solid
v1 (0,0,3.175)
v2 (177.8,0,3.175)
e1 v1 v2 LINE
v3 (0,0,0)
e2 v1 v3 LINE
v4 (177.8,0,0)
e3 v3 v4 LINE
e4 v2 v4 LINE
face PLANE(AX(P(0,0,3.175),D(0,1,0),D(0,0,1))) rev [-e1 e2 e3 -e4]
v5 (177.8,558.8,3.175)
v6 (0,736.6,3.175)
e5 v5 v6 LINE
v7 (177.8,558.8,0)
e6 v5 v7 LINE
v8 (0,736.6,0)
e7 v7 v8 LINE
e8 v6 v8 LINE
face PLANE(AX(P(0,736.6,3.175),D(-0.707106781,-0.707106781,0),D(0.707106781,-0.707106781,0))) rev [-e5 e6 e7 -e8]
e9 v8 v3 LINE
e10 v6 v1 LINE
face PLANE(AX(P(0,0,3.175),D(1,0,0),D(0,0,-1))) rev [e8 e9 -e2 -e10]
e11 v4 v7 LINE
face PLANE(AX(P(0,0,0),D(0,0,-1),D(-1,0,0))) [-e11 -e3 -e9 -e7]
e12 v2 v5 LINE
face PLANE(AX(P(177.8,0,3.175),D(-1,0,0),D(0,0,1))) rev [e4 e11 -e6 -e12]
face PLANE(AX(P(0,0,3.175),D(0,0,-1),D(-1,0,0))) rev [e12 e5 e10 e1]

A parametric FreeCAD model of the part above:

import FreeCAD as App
import Part
import Sketcher
from FreeCAD import Vector
Q = App.Units.Quantity


def add_polygon(sketch, points):
    """Adds a closed chain of lines whose ends are joined by coincident constraints."""
    first, n = sketch.GeometryCount, len(points)
    for a, b in zip(points, points[1:] + points[:1]):
        sketch.addGeometry(Part.LineSegment(App.Vector(*a, 0), App.Vector(*b, 0)), False)
    for i in range(n):
        sketch.addConstraint(Sketcher.Constraint("Coincident", first + i, 2, first + (i + 1) % n, 1))

doc = App.newDocument("Part")
body = doc.addObject("PartDesign::Body", "Body")

sketch1 = doc.addObject("Sketcher::SketchObject", "Sketch")
body.addObject(sketch1)
sketch1.AttachmentSupport = (doc.XY_Plane, [""])
sketch1.MapMode = "FlatFace"
add_polygon(sketch1, [(0, 0), (177.8, 0), (177.8, 558.8), (0, 736.6)])
sketch1.addConstraint(Sketcher.Constraint("Horizontal", 0))
sketch1.addConstraint(Sketcher.Constraint("Vertical", 1))
sketch1.addConstraint(Sketcher.Constraint("Vertical", 3))
sketch1.addConstraint(Sketcher.Constraint("Coincident", 3, 2, -1, 1))
sketch1.addConstraint(Sketcher.Constraint("DistanceX", 0, 1, 0, 2, Q("7 in")))
sketch1.addConstraint(Sketcher.Constraint("DistanceY", 1, 1, 1, 2, Q("22 in")))
sketch1.addConstraint(Sketcher.Constraint("DistanceY", 3, 2, 3, 1, Q("29 in")))
pad1 = doc.addObject("PartDesign::Pad", "Pad")
body.addObject(pad1)
pad1.Profile = sketch1
pad1.Length = Q("0.125 in")

doc.recompute()
